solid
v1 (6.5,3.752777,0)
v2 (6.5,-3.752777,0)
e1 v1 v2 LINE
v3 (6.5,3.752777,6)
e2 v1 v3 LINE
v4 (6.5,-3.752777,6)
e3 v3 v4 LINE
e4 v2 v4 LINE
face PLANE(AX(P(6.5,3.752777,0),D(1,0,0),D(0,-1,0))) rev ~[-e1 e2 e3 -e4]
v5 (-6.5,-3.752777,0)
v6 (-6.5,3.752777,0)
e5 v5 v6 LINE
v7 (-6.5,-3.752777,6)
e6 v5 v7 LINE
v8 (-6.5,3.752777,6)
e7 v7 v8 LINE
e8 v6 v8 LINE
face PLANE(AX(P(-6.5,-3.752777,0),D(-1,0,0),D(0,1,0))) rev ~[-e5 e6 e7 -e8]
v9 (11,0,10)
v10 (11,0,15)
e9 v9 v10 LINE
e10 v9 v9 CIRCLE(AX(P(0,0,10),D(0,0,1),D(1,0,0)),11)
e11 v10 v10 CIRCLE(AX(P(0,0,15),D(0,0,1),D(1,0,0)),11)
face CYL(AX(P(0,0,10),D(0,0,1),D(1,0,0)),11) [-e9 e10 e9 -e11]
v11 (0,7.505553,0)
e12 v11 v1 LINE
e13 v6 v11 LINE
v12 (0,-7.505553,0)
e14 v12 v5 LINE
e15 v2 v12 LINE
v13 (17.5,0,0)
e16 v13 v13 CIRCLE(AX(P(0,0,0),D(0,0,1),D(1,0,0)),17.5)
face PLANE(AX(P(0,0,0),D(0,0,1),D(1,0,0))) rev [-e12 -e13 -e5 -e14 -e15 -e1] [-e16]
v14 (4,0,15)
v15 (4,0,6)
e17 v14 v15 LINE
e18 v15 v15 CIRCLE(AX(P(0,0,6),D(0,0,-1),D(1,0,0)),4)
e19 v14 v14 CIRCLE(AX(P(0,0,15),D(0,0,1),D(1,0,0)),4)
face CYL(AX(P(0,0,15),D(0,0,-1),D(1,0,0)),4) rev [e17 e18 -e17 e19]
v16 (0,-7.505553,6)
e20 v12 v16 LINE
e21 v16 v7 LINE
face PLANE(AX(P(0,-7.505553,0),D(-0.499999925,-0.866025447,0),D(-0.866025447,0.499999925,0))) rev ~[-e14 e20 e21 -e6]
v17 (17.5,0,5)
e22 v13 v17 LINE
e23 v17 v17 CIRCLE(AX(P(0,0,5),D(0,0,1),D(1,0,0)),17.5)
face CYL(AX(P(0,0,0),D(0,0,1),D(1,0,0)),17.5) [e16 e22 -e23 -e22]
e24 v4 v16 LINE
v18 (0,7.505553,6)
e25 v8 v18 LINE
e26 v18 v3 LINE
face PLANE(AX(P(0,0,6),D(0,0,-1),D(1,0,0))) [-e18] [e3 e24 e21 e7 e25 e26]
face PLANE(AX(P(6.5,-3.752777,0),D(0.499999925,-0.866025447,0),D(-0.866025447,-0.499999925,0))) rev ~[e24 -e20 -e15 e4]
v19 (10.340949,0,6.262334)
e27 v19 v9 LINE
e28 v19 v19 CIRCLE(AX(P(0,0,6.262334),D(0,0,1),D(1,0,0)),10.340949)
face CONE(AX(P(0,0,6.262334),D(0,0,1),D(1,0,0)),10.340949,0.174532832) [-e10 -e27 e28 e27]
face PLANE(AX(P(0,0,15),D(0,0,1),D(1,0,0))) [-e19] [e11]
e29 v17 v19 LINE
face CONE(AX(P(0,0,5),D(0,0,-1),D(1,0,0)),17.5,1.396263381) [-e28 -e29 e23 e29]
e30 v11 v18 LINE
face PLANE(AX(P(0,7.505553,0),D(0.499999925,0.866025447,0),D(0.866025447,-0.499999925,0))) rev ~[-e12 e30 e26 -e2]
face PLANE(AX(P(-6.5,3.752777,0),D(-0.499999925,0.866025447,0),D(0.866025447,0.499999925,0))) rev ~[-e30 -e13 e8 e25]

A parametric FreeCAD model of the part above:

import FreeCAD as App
import Part
import Sketcher

V = App.Vector
Q = App.Units.Quantity


def add_polygon(sketch, points):
    """Adds a closed chain of lines whose ends are joined by coincident constraints."""
    first, n = sketch.GeometryCount, len(points)
    for a, b in zip(points, points[1:] + points[:1]):
        sketch.addGeometry(Part.LineSegment(App.Vector(*a, 0), App.Vector(*b, 0)), False)
    for i in range(n):
        sketch.addConstraint(Sketcher.Constraint("Coincident", first + i, 2, first + (i + 1) % n, 1))

doc = App.newDocument("Part")
body = doc.addObject("PartDesign::Body", "Body")

# Sketch on XZ plane
sketch1 = doc.addObject("Sketcher::SketchObject", "Sketch")
body.addObject(sketch1)
sketch1.AttachmentSupport = (doc.XZ_Plane, [""])
sketch1.MapMode = "FlatFace"
add_polygon(sketch1, [(4, 15), (4, 0), (17.5, 0), (17.5, 5), (10.340949, 6.262334), (11, 10), (11, 15)])  # lines 0-6
sketch1.addConstraint([
    Sketcher.Constraint("Vertical", 0),
    Sketcher.Constraint("Horizontal", 1),
    Sketcher.Constraint("Vertical", 2),
    Sketcher.Constraint("Vertical", 5),
    Sketcher.Constraint("Horizontal", 6),
    Sketcher.Constraint("PointOnObject", 0, 2, -1),
    Sketcher.Constraint("Perpendicular", 3, 4),
    Sketcher.Constraint("Equal", 2, 5),
    Sketcher.Constraint("DistanceX", 6, 2, 6, 1, 7.0),
    Sketcher.Constraint("DistanceY", 0, 2, 0, 1, 15.0),
    Sketcher.Constraint("DistanceY", 2, 1, 2, 2, 5.0),
    Sketcher.Constraint("Angle", 3, Q("169.999999 deg")),
    Sketcher.Constraint("DistanceX", 1, 1, 1, 2, 13.5),
    Sketcher.Constraint("DistanceX", -1, 1, 0, 2, 4.0),
])
revolution = doc.addObject("PartDesign::Revolution", "Revolution")
body.addObject(revolution)
revolution.Profile = sketch1
revolution.ReferenceAxis = (sketch1, ["V_Axis"])
revolution.Angle = 360

# Sketch on XY plane
sketch2 = doc.addObject("Sketcher::SketchObject", "Sketch001")
body.addObject(sketch2)
sketch2.AttachmentSupport = (doc.XY_Plane, [""])
sketch2.MapMode = "FlatFace"
add_polygon(sketch2, [(-6.5, 3.752777), (0, 7.505553), (6.5, 3.752777), (6.5, -3.752777), (0, -7.505553), (-6.5, -3.752777)])  # lines 0-5
sketch2.addGeometry(Part.Circle(V(0, 0, 0), V(0, 0, 1), 4), False)  # 6
sketch2.addConstraint([
    Sketcher.Constraint("Vertical", 2),
    Sketcher.Constraint("Vertical", 5),
    Sketcher.Constraint("Coincident", 6, 3, -1, 1),
    Sketcher.Constraint("Symmetric", 0, 2, 3, 2, -1, 1),
    Sketcher.Constraint("Symmetric", 1, 2, 4, 2, -1, 1),
    Sketcher.Constraint("PointOnObject", 0, 2, -2),
    Sketcher.Constraint("Parallel", 0, 3),
    Sketcher.Constraint("Horizontal", 2, 2, 4, 2),
    Sketcher.Constraint("Diameter", 6, 8.0),
    Sketcher.Constraint("Angle", 0, Q("29.999995 deg")),
    Sketcher.Constraint("DistanceX", 4, 2, 2, 2, 13.0),
    Sketcher.Constraint("DistanceY", 2, 2, 2, 1, 7.505554),
])
pocket1 = doc.addObject("PartDesign::Pocket", "Pocket")
body.addObject(pocket1)
pocket1.Profile = sketch2
pocket1.Length = 6
pocket1.Reversed = True

doc.recompute()
